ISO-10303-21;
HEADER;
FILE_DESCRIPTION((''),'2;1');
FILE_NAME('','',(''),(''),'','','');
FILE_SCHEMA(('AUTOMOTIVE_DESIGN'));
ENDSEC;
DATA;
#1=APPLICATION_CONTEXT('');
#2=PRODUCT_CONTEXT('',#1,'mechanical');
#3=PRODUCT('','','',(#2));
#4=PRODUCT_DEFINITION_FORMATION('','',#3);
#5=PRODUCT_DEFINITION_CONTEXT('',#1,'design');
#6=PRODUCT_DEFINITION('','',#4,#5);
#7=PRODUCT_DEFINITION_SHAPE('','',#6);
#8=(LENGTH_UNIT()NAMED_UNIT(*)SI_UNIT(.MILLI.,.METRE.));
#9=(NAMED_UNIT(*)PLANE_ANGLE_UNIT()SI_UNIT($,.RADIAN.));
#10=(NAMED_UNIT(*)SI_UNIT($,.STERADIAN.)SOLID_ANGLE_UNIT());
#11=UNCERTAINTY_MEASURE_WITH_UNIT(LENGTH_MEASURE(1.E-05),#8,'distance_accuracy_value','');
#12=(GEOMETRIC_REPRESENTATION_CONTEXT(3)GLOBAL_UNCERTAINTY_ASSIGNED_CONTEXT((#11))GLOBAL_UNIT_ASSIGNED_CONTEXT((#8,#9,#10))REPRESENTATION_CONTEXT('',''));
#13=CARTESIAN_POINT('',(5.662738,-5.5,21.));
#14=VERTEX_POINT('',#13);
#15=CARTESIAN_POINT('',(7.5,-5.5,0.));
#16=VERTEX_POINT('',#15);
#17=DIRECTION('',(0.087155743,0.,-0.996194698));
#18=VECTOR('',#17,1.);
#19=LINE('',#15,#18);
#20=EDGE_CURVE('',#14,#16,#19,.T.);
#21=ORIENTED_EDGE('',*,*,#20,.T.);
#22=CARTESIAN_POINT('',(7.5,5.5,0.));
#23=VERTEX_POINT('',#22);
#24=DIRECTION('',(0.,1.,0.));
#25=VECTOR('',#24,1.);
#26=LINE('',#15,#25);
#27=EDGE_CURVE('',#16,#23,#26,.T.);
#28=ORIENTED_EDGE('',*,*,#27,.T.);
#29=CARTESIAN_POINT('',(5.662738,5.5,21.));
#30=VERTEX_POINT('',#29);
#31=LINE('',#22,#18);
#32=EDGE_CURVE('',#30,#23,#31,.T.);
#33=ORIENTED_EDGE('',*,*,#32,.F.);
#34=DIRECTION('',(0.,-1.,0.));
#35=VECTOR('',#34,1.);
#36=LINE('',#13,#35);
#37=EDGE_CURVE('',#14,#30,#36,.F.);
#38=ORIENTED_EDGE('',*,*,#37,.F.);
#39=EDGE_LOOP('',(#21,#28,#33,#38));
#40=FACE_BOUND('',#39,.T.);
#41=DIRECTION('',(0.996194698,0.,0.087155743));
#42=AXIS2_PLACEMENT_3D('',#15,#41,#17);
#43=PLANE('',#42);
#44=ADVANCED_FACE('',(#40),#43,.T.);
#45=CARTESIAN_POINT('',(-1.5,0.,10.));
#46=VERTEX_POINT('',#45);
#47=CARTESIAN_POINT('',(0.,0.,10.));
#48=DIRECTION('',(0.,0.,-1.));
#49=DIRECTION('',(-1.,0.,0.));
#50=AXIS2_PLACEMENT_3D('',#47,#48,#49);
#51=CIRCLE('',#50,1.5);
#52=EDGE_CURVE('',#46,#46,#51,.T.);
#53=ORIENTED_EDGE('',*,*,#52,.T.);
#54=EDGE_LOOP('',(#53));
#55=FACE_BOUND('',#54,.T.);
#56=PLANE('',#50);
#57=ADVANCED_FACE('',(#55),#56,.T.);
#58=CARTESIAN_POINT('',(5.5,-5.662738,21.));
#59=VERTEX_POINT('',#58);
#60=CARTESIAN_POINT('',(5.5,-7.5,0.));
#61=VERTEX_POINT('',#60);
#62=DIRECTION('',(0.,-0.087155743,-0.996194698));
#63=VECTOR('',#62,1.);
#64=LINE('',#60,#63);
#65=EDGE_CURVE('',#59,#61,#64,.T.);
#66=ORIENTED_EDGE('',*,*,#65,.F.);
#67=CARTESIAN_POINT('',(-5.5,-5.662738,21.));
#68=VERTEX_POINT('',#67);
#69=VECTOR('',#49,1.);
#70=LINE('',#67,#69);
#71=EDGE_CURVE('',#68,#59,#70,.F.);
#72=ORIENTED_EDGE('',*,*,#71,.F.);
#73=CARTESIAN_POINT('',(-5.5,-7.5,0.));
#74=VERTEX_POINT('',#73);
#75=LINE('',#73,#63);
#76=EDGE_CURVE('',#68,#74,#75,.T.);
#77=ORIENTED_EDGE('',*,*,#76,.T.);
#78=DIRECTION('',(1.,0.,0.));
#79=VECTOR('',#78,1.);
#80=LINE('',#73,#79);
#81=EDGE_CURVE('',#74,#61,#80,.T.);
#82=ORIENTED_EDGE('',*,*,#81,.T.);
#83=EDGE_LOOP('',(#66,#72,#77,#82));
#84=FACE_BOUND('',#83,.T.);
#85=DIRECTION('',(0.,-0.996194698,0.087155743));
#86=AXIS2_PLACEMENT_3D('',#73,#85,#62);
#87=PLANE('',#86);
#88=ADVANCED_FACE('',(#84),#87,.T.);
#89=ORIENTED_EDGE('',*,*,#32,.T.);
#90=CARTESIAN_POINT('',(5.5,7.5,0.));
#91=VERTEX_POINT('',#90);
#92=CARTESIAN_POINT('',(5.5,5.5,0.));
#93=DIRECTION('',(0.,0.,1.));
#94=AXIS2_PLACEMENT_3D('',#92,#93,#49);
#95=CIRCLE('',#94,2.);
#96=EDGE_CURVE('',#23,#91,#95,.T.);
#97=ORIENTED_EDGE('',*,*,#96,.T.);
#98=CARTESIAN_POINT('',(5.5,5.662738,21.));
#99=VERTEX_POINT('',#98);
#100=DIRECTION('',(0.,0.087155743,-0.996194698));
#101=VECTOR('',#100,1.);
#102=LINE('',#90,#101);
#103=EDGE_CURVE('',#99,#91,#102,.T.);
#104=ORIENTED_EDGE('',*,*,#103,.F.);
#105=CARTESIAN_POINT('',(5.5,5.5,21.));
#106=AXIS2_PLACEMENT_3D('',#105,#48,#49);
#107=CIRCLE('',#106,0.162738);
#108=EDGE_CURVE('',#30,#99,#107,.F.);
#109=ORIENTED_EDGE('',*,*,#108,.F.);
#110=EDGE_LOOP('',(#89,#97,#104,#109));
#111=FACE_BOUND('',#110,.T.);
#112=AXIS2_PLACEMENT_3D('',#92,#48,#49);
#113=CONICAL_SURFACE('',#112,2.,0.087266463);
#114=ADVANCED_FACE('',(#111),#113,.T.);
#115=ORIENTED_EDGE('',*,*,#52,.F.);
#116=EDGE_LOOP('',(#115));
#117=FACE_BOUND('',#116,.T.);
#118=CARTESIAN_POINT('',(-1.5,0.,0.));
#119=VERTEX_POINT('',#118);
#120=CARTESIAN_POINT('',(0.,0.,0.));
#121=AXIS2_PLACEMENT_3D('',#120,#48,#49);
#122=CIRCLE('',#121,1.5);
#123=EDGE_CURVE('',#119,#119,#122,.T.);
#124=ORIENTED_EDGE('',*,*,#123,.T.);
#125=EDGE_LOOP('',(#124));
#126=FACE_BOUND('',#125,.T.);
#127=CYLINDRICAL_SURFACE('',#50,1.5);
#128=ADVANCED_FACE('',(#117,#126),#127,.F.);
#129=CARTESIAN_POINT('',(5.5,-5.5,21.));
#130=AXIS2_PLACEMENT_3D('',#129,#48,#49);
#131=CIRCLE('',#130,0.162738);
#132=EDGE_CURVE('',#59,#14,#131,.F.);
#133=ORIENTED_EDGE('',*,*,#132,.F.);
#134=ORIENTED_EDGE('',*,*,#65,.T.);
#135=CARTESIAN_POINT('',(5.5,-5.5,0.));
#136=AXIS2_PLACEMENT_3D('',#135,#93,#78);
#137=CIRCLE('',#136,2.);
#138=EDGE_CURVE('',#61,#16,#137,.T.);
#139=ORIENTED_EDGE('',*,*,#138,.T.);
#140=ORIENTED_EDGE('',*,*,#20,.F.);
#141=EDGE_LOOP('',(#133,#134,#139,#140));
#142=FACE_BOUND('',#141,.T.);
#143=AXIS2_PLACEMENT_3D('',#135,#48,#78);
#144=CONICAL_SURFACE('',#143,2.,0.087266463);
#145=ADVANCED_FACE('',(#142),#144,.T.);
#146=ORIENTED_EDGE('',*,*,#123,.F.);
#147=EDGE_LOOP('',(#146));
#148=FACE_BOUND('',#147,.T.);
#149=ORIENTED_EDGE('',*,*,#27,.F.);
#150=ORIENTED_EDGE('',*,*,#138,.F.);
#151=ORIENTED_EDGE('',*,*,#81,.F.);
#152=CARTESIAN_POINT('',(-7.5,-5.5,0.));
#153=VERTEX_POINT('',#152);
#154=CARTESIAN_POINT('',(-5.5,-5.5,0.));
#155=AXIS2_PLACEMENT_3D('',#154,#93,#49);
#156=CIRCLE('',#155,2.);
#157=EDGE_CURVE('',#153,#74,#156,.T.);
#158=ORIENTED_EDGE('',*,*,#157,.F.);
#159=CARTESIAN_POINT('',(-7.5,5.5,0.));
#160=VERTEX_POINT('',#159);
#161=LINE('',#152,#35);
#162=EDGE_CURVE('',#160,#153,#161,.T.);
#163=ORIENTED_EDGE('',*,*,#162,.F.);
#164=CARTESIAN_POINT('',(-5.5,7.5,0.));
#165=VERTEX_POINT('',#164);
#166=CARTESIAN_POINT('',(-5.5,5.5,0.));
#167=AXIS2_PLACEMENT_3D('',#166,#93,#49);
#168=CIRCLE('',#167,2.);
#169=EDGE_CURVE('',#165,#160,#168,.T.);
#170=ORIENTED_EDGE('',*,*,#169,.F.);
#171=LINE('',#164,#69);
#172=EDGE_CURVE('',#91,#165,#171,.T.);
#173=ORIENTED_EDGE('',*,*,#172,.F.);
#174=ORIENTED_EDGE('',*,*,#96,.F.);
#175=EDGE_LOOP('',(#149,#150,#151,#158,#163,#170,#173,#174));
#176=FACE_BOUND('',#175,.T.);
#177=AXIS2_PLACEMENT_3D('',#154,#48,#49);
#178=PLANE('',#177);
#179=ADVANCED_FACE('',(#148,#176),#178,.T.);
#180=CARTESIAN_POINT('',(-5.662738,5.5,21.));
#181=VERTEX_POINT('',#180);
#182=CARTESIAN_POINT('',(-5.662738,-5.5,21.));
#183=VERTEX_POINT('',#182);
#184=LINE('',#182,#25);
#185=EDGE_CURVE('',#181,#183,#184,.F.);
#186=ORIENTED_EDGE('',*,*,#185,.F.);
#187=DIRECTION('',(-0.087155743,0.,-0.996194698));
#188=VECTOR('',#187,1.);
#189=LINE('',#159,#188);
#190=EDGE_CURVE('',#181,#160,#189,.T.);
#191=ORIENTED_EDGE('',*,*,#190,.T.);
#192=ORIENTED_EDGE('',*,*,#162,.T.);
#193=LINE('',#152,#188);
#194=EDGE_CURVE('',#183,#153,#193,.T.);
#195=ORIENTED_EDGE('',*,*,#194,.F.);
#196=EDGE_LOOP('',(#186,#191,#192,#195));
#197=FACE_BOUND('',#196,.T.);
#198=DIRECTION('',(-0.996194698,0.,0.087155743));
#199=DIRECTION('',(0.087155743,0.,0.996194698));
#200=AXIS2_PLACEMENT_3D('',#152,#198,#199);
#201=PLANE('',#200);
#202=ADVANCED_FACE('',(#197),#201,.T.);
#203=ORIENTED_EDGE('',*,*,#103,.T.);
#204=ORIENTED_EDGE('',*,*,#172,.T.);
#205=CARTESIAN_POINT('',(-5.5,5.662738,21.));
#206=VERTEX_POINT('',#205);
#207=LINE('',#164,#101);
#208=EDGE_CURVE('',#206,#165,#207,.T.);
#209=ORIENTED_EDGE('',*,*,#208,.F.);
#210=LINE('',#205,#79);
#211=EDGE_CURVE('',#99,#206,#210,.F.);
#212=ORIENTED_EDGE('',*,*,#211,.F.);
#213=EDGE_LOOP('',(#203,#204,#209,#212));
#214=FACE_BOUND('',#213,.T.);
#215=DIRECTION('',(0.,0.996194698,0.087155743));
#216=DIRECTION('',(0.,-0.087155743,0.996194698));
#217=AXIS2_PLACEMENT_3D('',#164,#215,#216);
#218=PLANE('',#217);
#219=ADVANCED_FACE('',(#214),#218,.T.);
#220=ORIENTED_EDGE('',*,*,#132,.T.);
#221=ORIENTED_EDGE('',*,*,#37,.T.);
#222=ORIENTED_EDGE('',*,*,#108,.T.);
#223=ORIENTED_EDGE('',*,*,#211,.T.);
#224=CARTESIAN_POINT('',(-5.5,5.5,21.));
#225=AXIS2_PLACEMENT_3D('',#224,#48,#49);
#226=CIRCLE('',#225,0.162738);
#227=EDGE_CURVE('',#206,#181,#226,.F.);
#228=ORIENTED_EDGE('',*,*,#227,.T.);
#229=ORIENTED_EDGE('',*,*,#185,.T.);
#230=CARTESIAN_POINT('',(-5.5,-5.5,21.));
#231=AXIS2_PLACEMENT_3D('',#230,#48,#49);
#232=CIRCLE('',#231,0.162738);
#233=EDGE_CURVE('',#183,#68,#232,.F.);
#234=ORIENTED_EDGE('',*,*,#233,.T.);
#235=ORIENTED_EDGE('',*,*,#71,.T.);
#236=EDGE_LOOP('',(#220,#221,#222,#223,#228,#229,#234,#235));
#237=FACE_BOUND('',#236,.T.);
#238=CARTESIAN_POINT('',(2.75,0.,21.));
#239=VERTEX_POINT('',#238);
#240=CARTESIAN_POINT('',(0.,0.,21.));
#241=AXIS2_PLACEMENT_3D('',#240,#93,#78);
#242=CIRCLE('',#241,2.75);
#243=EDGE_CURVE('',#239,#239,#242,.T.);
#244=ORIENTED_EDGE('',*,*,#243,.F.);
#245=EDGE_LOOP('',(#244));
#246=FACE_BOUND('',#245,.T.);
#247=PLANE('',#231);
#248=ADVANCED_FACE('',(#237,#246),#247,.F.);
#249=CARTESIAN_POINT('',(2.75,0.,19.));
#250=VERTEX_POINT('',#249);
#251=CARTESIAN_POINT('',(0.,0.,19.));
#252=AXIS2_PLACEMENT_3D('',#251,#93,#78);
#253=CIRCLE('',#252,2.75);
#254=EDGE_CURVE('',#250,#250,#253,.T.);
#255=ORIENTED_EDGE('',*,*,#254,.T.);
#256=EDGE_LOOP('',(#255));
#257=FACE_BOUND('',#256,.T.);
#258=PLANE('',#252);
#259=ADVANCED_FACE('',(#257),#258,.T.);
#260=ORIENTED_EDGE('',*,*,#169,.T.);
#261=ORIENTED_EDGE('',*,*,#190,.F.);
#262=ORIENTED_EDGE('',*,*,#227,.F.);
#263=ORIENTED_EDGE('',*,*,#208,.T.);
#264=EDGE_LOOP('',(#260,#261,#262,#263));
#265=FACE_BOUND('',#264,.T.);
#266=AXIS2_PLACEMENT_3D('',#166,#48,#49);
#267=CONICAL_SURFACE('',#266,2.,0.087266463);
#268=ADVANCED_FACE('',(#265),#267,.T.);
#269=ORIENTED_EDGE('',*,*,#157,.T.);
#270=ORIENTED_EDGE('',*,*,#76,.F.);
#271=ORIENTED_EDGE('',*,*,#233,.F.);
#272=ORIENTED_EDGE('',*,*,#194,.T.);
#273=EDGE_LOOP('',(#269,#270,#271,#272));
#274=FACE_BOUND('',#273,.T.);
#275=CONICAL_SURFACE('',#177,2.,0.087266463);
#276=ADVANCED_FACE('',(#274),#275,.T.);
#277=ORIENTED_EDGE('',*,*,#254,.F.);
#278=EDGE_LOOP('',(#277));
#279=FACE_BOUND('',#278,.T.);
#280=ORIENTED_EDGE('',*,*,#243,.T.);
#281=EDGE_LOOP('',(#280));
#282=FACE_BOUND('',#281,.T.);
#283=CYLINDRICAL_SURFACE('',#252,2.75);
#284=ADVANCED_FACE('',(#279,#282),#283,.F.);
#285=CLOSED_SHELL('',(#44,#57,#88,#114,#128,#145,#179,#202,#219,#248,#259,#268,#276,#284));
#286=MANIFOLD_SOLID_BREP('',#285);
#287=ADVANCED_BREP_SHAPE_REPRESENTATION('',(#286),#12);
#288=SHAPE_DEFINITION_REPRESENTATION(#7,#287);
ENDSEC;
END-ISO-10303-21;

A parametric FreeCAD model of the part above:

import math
import FreeCAD as App
import Part
import Sketcher

doc = App.newDocument("Part")
body = doc.addObject("PartDesign::Body", "Body")

# Sketch on XY plane
sketch1 = body.newObject("Sketcher::SketchObject", "Sketch")
sketch1.AttachmentSupport = (doc.getObject("XY_Plane"), [""])
sketch1.MapMode = "FlatFace"
sketch1.addGeometry([
    Part.LineSegment(App.Vector(-5.5, -7.5, 0), App.Vector(5.5, -7.5, 0)),  # 0
    Part.ArcOfCircle(Part.Circle(App.Vector(5.5, -5.5, 0), App.Vector(0, 0, 1), 2), math.radians(-90), math.radians(0)),  # 1
    Part.LineSegment(App.Vector(7.5, -5.5, 0), App.Vector(7.5, 5.5, 0)),  # 2
    Part.ArcOfCircle(Part.Circle(App.Vector(5.5, 5.5, 0), App.Vector(0, 0, 1), 2), math.radians(0), math.radians(90)),  # 3
    Part.LineSegment(App.Vector(5.5, 7.5, 0), App.Vector(-5.5, 7.5, 0)),  # 4
    Part.ArcOfCircle(Part.Circle(App.Vector(-5.5, 5.5, 0), App.Vector(0, 0, 1), 2), math.radians(90), math.radians(180)),  # 5
    Part.LineSegment(App.Vector(-7.5, 5.5, 0), App.Vector(-7.5, -5.5, 0)),  # 6
    Part.ArcOfCircle(Part.Circle(App.Vector(-5.5, -5.5, 0), App.Vector(0, 0, 1), 2), math.radians(-180), math.radians(-90)),  # 7
], False)
sketch1.addConstraint([
    Sketcher.Constraint("Tangent", 0, 2, 1, 1),
    Sketcher.Constraint("Tangent", 1, 2, 2, 1),
    Sketcher.Constraint("Tangent", 2, 2, 3, 1),
    Sketcher.Constraint("Tangent", 3, 2, 4, 1),
    Sketcher.Constraint("Tangent", 4, 2, 5, 1),
    Sketcher.Constraint("Tangent", 5, 2, 6, 1),
    Sketcher.Constraint("Tangent", 6, 2, 7, 1),
    Sketcher.Constraint("Tangent", 7, 2, 0, 1),
    Sketcher.Constraint("Horizontal", 0),
    Sketcher.Constraint("Vertical", 2),
    Sketcher.Constraint("Horizontal", 4),
    Sketcher.Constraint("Vertical", 6),
    Sketcher.Constraint("Equal", 1, 3),
    Sketcher.Constraint("Equal", 3, 5),
    Sketcher.Constraint("Equal", 5, 7),
    Sketcher.Constraint("Symmetric", 1, 3, 5, 3, -1, 1),
    Sketcher.Constraint("Equal", 4, 2),
    Sketcher.Constraint("Radius", 1, 2.0),
    Sketcher.Constraint("DistanceX", 0, 1, 0, 2, 11.0),
])
pad1 = body.newObject("PartDesign::Pad", "Pad")
pad1.Profile = sketch1
pad1.Length = 21
pad1.TaperAngle = -5

# Sketch on XY plane
sketch2 = body.newObject("Sketcher::SketchObject", "Sketch001")
sketch2.AttachmentSupport = (doc.getObject("XY_Plane"), [""])
sketch2.MapMode = "FlatFace"
sketch2.addGeometry(Part.Circle(App.Vector(0, 0, 0), App.Vector(0, 0, 1), 1.5), False)
sketch2.addConstraint([
    Sketcher.Constraint("Coincident", 0, 3, -1, 1),
    Sketcher.Constraint("Diameter", 0, 3.0),
])
pocket1 = body.newObject("PartDesign::Pocket", "Pocket")
pocket1.Profile = sketch2
pocket1.Length = 10
pocket1.Reversed = True

# Sketch on XY plane
sketch3 = body.newObject("Sketcher::SketchObject", "Sketch002")
sketch3.AttachmentSupport = (doc.getObject("XY_Plane"), [""])
sketch3.MapMode = "FlatFace"
sketch3.AttachmentOffset = App.Placement(App.Vector(0, 0, 21), App.Rotation())
sketch3.addGeometry(Part.Circle(App.Vector(0, 0, 0), App.Vector(0, 0, 1), 2.8), False)
sketch3.addConstraint([
    Sketcher.Constraint("Coincident", 0, 3, -1, 1),
    Sketcher.Constraint("Diameter", 0, 5.5),
])
pocket2 = body.newObject("PartDesign::Pocket", "Pocket001")
pocket2.Profile = sketch3
pocket2.Length = 2

doc.recompute()
